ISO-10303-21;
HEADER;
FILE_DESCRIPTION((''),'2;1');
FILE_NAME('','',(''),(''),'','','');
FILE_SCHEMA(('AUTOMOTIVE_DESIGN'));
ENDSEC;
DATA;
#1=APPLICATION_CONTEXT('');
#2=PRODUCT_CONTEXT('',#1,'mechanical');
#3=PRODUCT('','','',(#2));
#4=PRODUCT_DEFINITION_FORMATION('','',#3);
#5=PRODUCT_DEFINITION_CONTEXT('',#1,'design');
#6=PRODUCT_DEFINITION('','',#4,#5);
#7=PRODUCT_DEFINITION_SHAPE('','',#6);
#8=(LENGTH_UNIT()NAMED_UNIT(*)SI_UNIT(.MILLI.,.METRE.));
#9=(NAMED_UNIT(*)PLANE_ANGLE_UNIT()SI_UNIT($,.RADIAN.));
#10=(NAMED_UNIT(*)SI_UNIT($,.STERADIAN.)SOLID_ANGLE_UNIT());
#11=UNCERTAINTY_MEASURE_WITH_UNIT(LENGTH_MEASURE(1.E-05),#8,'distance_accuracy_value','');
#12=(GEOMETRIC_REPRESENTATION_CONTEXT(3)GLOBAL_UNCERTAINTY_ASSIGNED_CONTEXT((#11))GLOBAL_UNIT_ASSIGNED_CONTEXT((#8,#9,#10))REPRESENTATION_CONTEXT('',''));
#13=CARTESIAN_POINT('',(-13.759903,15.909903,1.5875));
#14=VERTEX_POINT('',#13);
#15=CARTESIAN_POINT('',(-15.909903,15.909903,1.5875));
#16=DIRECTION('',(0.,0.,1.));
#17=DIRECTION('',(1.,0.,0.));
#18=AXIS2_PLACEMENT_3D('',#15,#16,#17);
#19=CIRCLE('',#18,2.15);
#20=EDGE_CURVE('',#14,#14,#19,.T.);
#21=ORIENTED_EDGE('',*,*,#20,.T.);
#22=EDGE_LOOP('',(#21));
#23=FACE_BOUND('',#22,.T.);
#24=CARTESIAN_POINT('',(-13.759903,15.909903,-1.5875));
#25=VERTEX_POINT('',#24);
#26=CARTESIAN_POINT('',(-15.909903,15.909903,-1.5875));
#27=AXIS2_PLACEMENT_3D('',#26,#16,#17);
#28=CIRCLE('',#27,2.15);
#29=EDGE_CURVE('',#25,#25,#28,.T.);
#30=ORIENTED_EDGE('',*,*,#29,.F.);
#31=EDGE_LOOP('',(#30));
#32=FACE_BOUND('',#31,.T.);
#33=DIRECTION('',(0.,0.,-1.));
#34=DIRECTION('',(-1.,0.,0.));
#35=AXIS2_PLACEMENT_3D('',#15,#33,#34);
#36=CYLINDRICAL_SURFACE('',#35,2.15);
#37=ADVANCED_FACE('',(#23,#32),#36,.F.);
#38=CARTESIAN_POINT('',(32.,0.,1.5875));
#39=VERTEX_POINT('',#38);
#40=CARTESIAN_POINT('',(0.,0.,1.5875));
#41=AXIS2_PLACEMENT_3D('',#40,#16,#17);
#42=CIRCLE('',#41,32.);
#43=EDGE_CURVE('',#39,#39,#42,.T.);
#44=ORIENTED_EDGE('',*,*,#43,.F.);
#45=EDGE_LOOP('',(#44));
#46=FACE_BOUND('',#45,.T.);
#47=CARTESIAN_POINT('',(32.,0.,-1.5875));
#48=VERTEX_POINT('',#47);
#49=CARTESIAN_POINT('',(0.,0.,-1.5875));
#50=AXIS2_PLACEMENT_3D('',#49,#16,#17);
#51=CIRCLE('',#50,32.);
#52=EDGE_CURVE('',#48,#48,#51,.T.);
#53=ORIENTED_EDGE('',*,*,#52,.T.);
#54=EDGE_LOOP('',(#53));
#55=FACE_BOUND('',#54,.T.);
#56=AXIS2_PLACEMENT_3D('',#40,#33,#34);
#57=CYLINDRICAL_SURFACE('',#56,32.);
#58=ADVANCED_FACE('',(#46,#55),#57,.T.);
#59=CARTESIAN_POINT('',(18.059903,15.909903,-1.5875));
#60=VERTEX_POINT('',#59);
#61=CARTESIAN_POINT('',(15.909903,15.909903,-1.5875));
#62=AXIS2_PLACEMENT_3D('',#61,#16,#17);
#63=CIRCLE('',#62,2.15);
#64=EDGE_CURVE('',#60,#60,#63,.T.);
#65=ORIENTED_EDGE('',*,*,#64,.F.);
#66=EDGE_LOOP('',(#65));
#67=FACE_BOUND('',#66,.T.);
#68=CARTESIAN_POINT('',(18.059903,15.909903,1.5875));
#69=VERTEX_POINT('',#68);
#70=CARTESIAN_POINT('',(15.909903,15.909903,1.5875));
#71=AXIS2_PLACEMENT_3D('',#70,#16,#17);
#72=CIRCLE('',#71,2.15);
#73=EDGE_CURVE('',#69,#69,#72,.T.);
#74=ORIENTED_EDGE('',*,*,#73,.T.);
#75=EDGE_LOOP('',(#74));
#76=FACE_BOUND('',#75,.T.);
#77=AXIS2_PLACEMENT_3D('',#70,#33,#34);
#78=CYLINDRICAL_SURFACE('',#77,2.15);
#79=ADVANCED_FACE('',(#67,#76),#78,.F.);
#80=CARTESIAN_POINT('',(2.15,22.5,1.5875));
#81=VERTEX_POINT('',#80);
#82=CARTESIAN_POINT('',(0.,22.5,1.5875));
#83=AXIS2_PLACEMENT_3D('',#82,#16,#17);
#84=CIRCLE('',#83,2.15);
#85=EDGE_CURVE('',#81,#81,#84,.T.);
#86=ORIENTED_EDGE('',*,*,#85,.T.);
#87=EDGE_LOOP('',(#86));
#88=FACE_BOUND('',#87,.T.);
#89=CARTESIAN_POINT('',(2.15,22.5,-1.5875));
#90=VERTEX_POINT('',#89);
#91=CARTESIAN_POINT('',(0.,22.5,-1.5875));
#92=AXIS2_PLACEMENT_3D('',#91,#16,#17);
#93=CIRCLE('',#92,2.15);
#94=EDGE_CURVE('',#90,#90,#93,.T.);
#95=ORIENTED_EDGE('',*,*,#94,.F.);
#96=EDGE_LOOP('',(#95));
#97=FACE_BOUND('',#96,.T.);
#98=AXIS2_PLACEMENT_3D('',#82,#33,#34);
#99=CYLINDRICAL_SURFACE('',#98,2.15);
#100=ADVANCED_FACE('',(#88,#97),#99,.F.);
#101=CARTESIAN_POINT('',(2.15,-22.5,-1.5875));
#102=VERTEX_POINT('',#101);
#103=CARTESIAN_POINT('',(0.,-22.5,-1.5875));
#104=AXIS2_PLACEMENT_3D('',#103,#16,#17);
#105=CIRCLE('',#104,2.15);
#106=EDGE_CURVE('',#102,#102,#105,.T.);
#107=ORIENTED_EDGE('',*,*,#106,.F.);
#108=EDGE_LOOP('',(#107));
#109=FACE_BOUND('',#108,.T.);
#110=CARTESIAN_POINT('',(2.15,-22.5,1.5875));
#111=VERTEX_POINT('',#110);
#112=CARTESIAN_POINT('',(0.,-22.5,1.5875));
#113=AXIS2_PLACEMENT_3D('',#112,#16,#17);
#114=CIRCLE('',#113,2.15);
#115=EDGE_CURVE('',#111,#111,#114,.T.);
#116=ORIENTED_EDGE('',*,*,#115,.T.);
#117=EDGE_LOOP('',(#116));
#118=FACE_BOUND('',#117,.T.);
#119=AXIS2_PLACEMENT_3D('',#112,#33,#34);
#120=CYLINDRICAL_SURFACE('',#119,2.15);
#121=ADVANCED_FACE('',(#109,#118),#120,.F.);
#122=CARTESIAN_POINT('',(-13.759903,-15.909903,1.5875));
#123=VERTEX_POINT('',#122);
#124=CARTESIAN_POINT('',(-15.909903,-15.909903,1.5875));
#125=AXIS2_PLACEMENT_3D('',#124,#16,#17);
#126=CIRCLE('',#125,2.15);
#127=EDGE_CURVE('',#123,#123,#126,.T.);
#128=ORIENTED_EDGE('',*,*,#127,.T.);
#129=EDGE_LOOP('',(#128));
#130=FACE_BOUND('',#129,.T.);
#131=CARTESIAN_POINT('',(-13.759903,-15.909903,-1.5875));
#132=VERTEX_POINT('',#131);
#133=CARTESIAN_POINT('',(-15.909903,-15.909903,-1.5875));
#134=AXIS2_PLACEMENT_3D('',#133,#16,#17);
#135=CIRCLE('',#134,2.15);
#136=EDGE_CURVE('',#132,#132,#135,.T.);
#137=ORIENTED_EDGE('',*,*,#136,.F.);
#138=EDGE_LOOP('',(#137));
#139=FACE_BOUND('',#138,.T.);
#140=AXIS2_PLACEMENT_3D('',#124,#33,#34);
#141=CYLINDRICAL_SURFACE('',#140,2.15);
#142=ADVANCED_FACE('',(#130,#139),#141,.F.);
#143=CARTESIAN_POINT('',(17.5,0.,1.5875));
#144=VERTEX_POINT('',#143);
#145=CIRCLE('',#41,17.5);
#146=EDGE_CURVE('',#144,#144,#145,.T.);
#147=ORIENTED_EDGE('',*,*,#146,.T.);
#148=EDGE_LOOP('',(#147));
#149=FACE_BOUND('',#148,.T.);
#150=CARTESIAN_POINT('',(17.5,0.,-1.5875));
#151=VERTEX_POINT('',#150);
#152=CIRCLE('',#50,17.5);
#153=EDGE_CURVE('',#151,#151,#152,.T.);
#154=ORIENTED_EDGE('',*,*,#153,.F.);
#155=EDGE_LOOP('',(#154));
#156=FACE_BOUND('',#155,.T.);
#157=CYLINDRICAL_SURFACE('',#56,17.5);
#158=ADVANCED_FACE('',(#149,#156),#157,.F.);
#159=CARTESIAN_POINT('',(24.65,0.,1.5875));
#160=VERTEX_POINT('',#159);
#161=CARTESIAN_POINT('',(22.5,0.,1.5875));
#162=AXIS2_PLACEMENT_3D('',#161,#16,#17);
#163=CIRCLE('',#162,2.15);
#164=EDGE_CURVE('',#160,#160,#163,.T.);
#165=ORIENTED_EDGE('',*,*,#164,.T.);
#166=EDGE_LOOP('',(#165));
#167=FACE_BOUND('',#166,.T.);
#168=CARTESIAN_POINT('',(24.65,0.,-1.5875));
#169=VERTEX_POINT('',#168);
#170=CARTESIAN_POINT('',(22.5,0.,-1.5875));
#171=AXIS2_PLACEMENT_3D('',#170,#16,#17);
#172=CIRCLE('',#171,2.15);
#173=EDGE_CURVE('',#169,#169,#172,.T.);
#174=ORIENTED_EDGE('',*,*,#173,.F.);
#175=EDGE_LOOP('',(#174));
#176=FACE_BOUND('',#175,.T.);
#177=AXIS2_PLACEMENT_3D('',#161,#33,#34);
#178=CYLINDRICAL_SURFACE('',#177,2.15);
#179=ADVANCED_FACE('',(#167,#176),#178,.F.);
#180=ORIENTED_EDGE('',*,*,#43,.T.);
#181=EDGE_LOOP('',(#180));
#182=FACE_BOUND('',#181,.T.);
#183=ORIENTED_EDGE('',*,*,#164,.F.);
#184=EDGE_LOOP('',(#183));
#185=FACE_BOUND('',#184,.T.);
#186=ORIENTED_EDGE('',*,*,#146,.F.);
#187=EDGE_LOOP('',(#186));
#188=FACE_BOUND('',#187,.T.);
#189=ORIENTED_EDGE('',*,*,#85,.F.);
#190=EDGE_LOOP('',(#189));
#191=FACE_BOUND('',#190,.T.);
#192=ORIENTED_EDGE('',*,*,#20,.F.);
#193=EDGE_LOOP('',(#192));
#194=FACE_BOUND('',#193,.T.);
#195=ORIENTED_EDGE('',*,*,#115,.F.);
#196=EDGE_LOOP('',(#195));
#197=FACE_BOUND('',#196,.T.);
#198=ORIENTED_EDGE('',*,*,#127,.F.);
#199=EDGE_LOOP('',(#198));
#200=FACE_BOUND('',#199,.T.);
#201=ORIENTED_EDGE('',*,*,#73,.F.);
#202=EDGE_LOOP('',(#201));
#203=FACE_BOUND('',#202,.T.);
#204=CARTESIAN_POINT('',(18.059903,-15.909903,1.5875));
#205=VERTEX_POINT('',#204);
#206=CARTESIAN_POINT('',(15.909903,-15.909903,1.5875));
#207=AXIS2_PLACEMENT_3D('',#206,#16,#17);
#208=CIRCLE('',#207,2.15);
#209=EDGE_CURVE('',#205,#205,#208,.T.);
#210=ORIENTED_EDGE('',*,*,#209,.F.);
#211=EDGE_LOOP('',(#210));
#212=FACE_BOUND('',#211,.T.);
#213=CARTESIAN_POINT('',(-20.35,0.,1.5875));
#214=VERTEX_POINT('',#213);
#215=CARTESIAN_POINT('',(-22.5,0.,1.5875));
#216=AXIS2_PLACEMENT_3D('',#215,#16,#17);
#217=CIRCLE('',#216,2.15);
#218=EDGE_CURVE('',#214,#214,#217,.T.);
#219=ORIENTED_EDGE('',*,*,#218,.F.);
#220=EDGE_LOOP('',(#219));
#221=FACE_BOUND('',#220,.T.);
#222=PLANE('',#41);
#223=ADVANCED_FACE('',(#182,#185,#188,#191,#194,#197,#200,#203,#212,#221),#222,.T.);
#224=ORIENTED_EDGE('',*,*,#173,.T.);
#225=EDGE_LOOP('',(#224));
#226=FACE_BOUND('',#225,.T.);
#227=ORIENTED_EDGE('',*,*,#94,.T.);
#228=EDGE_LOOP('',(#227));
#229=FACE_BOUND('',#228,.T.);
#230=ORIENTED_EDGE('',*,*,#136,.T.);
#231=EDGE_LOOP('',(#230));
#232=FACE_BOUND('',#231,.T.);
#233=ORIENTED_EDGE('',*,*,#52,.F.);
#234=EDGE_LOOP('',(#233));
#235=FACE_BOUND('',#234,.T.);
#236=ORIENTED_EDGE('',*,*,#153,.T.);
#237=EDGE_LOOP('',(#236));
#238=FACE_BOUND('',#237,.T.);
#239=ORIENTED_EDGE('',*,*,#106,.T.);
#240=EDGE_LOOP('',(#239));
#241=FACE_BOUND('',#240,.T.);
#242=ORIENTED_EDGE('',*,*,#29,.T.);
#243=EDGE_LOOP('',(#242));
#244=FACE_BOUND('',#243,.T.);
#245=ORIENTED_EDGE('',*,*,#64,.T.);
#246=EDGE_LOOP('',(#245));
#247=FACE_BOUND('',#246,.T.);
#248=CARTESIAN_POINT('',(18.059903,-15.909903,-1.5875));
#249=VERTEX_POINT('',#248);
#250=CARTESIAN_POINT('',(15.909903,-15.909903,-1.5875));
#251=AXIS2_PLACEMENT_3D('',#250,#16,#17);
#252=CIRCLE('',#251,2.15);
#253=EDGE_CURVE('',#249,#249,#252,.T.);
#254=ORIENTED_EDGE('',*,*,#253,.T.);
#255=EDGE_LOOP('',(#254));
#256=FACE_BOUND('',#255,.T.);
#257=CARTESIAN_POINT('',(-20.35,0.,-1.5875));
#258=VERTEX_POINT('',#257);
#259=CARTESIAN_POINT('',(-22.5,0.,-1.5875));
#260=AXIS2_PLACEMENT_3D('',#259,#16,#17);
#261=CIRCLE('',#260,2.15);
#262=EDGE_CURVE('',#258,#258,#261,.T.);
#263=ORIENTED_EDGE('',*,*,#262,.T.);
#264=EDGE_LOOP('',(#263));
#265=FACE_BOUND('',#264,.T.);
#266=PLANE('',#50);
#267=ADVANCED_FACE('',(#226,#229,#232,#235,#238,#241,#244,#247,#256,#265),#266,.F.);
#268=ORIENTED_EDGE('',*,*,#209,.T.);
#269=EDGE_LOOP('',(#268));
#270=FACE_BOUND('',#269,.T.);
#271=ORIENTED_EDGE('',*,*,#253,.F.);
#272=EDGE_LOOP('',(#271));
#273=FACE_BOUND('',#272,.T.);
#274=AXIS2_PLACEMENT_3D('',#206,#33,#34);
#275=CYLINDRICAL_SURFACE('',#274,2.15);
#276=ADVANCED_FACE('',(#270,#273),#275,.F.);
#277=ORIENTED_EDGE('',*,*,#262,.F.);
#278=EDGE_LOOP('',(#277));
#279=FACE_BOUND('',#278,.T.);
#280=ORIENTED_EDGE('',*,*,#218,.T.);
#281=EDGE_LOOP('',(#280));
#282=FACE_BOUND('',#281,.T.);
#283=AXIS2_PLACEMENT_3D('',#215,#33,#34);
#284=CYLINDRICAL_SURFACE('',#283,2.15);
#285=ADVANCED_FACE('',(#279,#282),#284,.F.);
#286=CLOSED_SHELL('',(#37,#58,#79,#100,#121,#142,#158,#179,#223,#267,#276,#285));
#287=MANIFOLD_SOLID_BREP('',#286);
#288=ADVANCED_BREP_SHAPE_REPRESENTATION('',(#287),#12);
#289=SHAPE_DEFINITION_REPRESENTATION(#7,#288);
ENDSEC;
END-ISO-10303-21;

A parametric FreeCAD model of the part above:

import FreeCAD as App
import Part
import Sketcher
from FreeCAD import Vector

doc = App.newDocument("Part")
body = doc.addObject("PartDesign::Body", "Body")

# Sketch on XY plane
sketch1 = body.newObject("Sketcher::SketchObject", "Sketch")
sketch1.AttachmentSupport = (doc.getObject("XY_Plane"), [""])
sketch1.MapMode = "FlatFace"
sketch1.addGeometry(Part.Circle(Vector(0, 0, 0), Vector(0, 0, 1), 32), False)
sketch1.addGeometry(Part.Circle(Vector(-15.909903, -15.909903, 0), Vector(0, 0, 1), 2.15), False)
sketch1.addGeometry(Part.Circle(Vector(-22.5, 0, 0), Vector(0, 0, 1), 2.15), False)
sketch1.addGeometry(Part.Circle(Vector(0, 0, 0), Vector(0, 0, 1), 17.5), False)
sketch1.addGeometry(Part.Circle(Vector(0, -22.5, 0), Vector(0, 0, 1), 2.15), False)
sketch1.addGeometry(Part.Circle(Vector(15.909903, -15.909903, 0), Vector(0, 0, 1), 2.15), False)
sketch1.addGeometry(Part.Circle(Vector(-15.909903, 15.909903, 0), Vector(0, 0, 1), 2.15), False)
sketch1.addGeometry(Part.Circle(Vector(0, 22.5, 0), Vector(0, 0, 1), 2.15), False)
sketch1.addGeometry(Part.Circle(Vector(22.5, 0, 0), Vector(0, 0, 1), 2.15), False)
sketch1.addGeometry(Part.Circle(Vector(15.909903, 15.909903, 0), Vector(0, 0, 1), 2.15), False)
sketch1.addConstraint(Sketcher.Constraint("Coincident", 0, 3, -1, 1))
sketch1.addConstraint(Sketcher.Constraint("Coincident", 3, 3, -1, 1))
sketch1.addConstraint(Sketcher.Constraint("Equal", 1, 2))
sketch1.addConstraint(Sketcher.Constraint("Equal", 2, 4))
sketch1.addConstraint(Sketcher.Constraint("Equal", 4, 5))
sketch1.addConstraint(Sketcher.Constraint("Equal", 5, 6))
sketch1.addConstraint(Sketcher.Constraint("Equal", 6, 7))
sketch1.addConstraint(Sketcher.Constraint("Equal", 7, 8))
sketch1.addConstraint(Sketcher.Constraint("Equal", 8, 9))
sketch1.addConstraint(Sketcher.Constraint("Symmetric", 5, 3, 6, 3, -1, 1))
sketch1.addConstraint(Sketcher.Constraint("Symmetric", 4, 3, 7, 3, -1, 1))
sketch1.addConstraint(Sketcher.Constraint("Symmetric", 2, 3, 8, 3, -1, 1))
sketch1.addConstraint(Sketcher.Constraint("Symmetric", 1, 3, 9, 3, -1, 1))
sketch1.addConstraint(Sketcher.Constraint("Symmetric", 1, 3, 5, 3, -2))
sketch1.addConstraint(Sketcher.Constraint("PointOnObject", 2, 3, -1))
sketch1.addConstraint(Sketcher.Constraint("PointOnObject", 4, 3, -2))
sketch1.addConstraint(Sketcher.Constraint("Diameter", 0, 64.0))
sketch1.addConstraint(Sketcher.Constraint("Diameter", 3, 35.0))
sketch1.addConstraint(Sketcher.Constraint("Diameter", 1, 4.3))
sketch1.addConstraint(Sketcher.Constraint("DistanceX", 2, 3, -1, 1, 22.5))
sketch1.addConstraint(Sketcher.Constraint("DistanceY", 4, 3, -1, 1, 22.5))
sketch1.addConstraint(Sketcher.Constraint("DistanceX", 1, 3, -1, 1, 15.909903))
sketch1.addConstraint(Sketcher.Constraint("DistanceY", 1, 3, -1, 1, 15.909903))
pad1 = body.newObject("PartDesign::Pad", "Pad")
pad1.Profile = sketch1
pad1.Length = 3.175
pad1.Midplane = True

doc.recompute()
